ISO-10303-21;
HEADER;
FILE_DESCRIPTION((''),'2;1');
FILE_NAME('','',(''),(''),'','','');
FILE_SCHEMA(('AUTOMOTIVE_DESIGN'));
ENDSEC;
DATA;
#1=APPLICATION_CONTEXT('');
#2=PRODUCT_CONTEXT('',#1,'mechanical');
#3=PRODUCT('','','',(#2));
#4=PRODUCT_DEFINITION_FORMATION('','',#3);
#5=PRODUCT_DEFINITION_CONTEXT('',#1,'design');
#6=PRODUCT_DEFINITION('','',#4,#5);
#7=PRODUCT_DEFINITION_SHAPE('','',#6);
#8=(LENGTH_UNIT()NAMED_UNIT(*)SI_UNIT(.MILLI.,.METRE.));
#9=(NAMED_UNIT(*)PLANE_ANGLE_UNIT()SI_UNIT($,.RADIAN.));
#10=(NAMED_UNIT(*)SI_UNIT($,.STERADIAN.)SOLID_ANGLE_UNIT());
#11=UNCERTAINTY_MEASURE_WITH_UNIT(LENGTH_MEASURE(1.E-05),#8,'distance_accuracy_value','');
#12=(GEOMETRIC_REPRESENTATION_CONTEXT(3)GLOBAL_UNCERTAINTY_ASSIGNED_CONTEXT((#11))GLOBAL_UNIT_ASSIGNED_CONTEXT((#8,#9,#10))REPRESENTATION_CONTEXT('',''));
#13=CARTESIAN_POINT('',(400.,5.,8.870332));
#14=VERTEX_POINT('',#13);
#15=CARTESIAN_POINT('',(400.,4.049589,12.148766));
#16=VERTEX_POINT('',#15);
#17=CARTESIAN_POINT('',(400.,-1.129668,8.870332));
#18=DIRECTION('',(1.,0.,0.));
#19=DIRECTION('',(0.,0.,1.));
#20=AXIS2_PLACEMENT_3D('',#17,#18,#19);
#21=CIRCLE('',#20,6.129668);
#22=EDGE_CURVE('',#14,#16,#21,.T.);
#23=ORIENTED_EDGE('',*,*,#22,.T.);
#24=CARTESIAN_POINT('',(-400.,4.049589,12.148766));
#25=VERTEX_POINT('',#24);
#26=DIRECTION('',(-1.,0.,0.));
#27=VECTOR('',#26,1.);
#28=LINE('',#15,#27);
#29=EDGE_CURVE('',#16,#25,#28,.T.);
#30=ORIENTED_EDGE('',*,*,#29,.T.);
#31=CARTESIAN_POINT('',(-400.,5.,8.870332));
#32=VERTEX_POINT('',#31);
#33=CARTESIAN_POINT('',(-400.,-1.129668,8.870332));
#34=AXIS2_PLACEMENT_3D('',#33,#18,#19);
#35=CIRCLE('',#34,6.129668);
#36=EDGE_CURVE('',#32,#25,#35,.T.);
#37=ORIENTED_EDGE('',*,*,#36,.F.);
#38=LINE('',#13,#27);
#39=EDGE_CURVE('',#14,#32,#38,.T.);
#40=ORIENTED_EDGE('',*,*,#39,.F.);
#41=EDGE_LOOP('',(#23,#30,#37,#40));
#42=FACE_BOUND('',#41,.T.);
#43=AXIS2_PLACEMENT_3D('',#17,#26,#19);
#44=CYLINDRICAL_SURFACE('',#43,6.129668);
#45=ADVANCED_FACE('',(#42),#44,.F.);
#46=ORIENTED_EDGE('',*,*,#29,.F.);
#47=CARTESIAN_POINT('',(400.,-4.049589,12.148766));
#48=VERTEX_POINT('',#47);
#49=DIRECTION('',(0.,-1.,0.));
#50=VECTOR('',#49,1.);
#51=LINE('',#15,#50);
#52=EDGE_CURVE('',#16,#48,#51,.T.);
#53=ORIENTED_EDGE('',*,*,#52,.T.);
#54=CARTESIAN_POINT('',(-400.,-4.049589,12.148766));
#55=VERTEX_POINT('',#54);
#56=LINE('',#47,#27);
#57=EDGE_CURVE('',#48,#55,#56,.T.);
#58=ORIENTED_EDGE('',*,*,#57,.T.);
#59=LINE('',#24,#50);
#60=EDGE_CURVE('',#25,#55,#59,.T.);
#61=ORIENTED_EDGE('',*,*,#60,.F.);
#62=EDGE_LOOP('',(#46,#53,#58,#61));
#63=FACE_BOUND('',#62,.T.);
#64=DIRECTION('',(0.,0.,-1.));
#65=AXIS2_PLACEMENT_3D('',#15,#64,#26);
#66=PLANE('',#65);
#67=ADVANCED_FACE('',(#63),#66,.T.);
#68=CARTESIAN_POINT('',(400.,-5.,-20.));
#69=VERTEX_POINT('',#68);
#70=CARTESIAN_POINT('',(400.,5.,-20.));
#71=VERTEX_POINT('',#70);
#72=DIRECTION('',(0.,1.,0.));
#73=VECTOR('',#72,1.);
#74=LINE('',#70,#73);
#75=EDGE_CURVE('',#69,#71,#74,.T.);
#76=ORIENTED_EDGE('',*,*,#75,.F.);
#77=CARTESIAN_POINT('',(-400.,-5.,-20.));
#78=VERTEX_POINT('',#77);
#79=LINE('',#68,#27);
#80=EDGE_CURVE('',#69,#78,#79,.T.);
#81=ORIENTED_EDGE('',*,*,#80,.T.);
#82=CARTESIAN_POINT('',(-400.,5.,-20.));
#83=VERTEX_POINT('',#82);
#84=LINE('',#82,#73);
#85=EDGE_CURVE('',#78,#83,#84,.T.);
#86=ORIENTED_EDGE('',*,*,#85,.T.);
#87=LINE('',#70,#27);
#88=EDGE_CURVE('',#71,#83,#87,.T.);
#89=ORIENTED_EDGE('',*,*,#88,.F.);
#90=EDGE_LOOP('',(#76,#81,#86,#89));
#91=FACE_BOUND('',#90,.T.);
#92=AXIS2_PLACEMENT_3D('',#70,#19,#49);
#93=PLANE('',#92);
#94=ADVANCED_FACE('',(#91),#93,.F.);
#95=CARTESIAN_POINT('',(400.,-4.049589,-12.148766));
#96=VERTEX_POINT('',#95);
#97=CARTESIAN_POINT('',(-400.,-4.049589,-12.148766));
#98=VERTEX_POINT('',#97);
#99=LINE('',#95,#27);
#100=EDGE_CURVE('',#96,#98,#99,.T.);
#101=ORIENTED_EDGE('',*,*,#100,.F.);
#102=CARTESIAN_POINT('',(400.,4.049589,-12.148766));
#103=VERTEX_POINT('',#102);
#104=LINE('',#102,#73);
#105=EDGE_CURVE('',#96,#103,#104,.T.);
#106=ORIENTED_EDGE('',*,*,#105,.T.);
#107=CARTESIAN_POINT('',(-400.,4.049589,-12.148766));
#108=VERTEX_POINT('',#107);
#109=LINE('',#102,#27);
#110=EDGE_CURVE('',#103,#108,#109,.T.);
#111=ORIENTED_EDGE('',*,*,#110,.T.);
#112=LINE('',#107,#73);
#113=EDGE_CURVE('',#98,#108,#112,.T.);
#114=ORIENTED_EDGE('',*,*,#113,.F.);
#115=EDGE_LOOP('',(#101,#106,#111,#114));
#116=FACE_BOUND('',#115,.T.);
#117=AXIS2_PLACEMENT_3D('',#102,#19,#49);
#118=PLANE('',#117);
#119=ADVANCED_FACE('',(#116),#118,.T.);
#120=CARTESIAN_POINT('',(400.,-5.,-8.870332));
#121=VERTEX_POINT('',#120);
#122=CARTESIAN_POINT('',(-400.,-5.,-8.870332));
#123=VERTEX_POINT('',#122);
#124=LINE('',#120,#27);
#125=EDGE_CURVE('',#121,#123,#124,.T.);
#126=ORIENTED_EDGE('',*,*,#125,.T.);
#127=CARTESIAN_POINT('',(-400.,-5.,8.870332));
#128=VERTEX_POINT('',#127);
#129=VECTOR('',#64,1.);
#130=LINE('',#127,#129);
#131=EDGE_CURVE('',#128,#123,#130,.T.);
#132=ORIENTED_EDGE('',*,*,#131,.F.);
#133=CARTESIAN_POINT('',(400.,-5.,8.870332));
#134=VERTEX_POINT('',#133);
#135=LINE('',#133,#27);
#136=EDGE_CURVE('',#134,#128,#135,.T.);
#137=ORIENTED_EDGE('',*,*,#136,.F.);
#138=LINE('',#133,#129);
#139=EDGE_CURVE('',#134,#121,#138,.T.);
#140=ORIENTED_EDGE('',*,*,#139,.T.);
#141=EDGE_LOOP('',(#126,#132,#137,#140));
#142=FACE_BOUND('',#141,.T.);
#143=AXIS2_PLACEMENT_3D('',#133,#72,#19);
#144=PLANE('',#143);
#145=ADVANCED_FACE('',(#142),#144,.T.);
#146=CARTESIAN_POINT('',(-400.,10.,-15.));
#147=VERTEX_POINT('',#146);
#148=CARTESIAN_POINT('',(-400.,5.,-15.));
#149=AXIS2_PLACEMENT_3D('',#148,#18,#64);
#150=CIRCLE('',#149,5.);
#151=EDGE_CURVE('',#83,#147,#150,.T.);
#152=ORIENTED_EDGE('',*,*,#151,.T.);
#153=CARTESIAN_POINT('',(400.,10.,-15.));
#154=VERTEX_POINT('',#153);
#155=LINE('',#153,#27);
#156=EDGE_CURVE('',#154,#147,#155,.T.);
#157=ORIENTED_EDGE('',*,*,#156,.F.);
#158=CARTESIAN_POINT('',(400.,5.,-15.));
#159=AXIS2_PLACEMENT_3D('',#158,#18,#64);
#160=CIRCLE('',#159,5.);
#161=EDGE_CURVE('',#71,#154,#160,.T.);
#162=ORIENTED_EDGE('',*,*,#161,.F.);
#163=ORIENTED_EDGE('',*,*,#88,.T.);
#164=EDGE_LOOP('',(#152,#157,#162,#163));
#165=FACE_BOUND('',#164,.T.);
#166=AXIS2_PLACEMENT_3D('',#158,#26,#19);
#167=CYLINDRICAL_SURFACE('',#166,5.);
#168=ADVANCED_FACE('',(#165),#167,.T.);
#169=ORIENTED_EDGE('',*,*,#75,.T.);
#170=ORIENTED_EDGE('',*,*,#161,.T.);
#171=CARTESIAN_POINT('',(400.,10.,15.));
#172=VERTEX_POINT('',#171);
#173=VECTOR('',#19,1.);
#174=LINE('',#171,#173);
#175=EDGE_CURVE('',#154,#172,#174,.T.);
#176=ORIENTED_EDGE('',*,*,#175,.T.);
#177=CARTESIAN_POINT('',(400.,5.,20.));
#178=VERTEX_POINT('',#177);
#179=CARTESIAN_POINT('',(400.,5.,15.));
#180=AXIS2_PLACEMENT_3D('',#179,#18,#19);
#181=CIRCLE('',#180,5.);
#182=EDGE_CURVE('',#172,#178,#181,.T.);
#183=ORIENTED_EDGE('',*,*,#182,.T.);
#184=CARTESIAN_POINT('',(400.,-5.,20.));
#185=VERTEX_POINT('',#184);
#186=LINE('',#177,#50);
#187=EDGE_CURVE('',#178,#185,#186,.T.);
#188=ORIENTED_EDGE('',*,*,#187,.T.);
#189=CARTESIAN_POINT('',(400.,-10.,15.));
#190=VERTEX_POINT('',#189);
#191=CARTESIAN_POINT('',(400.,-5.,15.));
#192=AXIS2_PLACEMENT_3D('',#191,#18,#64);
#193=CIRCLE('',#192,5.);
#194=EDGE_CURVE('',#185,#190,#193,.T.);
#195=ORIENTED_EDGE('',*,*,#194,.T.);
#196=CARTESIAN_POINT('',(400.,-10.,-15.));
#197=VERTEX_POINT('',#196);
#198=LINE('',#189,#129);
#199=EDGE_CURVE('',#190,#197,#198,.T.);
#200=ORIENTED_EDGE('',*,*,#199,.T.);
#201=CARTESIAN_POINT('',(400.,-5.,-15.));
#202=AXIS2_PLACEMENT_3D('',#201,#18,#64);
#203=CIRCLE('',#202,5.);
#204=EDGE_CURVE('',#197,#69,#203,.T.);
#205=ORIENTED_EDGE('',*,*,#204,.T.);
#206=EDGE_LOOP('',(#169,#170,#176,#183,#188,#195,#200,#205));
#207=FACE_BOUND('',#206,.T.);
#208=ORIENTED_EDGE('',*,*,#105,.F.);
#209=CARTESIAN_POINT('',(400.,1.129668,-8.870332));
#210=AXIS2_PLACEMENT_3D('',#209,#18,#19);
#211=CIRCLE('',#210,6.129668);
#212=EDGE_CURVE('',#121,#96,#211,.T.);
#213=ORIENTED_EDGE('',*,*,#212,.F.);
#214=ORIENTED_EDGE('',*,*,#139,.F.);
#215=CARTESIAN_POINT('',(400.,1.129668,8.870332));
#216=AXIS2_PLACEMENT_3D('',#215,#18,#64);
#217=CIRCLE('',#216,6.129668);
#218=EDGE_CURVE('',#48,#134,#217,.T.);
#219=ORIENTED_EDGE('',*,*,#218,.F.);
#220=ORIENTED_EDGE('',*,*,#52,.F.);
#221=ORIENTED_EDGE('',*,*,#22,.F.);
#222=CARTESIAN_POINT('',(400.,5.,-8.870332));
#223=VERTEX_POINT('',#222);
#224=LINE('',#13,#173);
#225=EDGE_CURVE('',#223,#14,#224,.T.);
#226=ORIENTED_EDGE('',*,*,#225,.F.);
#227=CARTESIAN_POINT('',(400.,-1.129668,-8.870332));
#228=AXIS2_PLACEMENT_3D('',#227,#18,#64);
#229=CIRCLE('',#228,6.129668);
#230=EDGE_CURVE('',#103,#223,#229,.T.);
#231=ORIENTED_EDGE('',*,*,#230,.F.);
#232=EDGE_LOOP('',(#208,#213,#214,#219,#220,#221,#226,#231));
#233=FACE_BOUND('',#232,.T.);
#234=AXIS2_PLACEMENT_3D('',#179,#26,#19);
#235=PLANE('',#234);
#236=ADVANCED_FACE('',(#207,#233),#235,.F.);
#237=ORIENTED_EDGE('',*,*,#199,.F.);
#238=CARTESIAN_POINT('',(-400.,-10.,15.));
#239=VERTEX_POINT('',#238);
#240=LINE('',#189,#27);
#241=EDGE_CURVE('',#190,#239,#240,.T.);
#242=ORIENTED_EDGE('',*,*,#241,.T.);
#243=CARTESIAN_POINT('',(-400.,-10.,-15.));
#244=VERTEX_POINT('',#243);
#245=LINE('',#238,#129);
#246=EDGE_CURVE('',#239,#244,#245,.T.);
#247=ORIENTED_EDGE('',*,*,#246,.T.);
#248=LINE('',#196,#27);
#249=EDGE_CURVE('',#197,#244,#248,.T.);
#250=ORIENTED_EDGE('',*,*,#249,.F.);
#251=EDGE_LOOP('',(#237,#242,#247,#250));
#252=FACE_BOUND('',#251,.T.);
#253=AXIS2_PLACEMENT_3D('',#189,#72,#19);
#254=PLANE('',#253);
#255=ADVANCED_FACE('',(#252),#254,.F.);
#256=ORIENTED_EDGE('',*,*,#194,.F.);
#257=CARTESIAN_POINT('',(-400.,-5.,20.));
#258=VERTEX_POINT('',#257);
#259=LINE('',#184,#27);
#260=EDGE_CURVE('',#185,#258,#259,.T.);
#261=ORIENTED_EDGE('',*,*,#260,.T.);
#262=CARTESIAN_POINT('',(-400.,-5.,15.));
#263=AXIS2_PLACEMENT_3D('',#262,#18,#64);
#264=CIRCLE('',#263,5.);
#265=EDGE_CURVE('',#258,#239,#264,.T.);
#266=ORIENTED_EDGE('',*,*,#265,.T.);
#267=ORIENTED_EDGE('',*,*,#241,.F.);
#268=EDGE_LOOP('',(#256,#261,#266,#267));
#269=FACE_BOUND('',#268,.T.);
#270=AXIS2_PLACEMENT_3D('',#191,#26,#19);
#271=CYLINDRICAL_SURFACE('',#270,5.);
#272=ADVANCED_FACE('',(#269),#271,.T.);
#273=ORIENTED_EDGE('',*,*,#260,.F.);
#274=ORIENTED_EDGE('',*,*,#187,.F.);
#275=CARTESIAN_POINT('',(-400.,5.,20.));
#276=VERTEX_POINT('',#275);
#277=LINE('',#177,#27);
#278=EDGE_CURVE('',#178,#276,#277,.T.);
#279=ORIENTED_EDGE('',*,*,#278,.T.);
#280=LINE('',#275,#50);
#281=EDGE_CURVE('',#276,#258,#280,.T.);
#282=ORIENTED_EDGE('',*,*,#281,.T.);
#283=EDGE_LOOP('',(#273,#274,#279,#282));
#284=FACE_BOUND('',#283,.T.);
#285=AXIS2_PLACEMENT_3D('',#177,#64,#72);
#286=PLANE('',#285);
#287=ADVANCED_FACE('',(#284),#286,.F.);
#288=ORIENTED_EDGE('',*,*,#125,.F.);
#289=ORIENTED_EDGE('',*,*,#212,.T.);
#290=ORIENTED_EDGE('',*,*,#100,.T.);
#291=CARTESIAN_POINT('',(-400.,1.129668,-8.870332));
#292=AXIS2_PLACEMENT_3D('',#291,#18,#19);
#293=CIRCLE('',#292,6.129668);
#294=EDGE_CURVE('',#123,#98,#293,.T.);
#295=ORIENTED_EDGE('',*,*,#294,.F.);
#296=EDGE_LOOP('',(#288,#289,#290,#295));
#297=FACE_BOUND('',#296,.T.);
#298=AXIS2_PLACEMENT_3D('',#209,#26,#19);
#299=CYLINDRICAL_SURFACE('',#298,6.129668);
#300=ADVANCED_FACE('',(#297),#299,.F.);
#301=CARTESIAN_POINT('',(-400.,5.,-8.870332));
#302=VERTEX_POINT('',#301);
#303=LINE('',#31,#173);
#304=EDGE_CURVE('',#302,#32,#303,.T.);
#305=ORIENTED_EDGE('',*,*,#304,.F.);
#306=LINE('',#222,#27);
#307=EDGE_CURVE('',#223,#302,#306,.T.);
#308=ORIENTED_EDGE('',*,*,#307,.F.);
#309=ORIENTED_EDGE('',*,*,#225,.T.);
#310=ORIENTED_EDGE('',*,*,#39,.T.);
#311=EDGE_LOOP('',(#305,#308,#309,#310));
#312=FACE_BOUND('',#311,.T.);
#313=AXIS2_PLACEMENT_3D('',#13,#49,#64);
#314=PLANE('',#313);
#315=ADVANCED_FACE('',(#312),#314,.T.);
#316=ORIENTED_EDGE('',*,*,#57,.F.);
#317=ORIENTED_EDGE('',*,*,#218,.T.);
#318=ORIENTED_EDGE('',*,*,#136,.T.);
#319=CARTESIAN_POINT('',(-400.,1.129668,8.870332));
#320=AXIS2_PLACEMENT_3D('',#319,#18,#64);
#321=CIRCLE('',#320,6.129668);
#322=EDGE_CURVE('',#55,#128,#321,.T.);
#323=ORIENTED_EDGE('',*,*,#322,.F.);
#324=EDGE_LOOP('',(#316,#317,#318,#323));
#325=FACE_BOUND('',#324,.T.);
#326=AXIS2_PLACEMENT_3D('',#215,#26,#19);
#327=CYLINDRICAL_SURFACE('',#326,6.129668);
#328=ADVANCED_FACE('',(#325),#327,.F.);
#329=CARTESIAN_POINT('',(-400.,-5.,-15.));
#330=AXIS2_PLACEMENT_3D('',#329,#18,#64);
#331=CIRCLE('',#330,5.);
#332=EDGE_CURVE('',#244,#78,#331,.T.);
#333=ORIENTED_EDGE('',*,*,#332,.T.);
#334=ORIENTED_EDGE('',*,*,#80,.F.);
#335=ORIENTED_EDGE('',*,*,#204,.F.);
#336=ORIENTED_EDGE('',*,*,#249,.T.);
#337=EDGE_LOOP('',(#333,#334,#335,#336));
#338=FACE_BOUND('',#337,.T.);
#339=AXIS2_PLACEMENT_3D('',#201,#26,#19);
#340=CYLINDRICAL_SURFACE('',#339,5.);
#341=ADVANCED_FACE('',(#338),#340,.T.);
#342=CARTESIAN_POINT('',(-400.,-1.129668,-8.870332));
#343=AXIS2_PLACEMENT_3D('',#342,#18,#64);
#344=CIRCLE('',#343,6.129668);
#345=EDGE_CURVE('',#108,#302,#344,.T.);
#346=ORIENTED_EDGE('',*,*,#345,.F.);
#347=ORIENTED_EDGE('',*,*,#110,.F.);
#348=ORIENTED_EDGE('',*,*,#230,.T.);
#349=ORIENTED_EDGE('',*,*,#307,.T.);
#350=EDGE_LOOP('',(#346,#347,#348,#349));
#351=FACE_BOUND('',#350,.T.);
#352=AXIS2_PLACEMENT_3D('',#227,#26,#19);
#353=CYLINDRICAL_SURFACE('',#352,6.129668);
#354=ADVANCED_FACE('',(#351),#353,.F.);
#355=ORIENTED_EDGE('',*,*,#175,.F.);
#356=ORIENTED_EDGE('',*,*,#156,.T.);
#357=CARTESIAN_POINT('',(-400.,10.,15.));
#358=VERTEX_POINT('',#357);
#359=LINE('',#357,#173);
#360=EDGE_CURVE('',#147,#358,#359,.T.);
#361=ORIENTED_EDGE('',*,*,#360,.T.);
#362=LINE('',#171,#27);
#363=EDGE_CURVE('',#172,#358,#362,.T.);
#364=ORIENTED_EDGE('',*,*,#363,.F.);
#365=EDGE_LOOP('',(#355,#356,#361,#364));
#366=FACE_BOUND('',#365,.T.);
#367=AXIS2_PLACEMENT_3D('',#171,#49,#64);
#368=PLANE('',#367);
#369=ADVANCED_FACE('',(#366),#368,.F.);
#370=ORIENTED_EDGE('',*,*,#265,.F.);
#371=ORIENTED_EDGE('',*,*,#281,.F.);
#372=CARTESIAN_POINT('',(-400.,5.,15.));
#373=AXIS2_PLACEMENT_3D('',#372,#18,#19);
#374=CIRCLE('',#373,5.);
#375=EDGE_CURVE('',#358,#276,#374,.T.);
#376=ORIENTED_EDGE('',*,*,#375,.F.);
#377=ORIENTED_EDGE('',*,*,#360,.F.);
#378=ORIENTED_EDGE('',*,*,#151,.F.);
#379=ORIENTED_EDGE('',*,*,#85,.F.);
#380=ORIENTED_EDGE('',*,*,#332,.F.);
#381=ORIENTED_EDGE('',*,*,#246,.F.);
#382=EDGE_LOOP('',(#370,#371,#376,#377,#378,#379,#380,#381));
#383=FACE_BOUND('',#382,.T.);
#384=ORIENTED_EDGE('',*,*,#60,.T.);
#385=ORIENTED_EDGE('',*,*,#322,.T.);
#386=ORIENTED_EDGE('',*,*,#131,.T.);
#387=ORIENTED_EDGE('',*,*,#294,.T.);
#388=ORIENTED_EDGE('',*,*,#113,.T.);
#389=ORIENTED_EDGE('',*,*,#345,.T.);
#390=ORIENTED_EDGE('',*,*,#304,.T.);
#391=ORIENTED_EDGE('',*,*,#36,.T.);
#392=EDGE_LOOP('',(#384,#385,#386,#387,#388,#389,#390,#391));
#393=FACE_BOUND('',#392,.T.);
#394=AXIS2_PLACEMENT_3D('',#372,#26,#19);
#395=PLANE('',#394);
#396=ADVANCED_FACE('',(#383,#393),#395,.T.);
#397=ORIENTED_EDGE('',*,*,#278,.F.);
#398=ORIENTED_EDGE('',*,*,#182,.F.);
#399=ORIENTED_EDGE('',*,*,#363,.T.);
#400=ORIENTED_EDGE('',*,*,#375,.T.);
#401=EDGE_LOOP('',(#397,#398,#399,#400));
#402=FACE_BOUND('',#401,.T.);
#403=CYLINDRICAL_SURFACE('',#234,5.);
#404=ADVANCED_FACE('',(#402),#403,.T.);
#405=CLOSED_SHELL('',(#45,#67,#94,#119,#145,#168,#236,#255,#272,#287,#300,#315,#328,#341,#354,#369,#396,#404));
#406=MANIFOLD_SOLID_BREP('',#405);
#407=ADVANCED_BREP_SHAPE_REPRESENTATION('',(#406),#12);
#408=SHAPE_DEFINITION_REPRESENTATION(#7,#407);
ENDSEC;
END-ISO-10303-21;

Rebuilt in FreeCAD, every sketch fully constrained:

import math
import FreeCAD as App
import Part
import Sketcher

V = App.Vector
Q = App.Units.Quantity

doc = App.newDocument("Part")
params = doc.addObject("Spreadsheet::Sheet", "Params")
for row, (alias, value) in enumerate([
    ("sketch1_radius", "5 mm"),
    ("sketch1_width", "10 mm"),
    ("sketch1_height", "30 mm"),
    ("pad1_length", "800 mm"),
], start=1):
    params.set(f"A{row}", alias)
    params.set(f"B{row}", "=" + value)
    params.setAlias(f"B{row}", alias)

body = doc.addObject("PartDesign::Body", "Body")

# Sketch on YZ plane
sketch1 = body.newObject("Sketcher::SketchObject", "Sketch")
sketch1.AttachmentSupport = (doc.getObject("YZ_Plane"), [""])
sketch1.MapMode = "FlatFace"
sketch1.addGeometry([
    Part.LineSegment(V(10, -15, 0), V(10, 15, 0)),  # 0
    Part.ArcOfCircle(Part.Circle(V(5, 15, 0), V(0, 0, 1), 5), math.radians(0), math.radians(90)),  # 1
    Part.LineSegment(V(5, 20, 0), V(-5, 20, 0)),  # 2
    Part.ArcOfCircle(Part.Circle(V(-5, 15, 0), V(0, 0, 1), 5), math.radians(90), math.radians(180)),  # 3
    Part.LineSegment(V(-10, 15, 0), V(-10, -15, 0)),  # 4
    Part.ArcOfCircle(Part.Circle(V(-5, -15, 0), V(0, 0, 1), 5), math.radians(180), math.radians(270)),  # 5
    Part.LineSegment(V(-5, -20, 0), V(5, -20, 0)),  # 6
    Part.ArcOfCircle(Part.Circle(V(5, -15, 0), V(0, 0, 1), 5), math.radians(-90), math.radians(0)),  # 7
    Part.LineSegment(V(4.049589, -12.148766, 0), V(-4.049589, -12.148766, 0)),  # 8
    Part.ArcOfCircle(Part.Circle(V(1.129668, -8.870332, 0), V(0, 0, 1), 6.129668), math.radians(180), math.radians(212.333531)),  # 9
    Part.LineSegment(V(-5, -8.870332, 0), V(-5, 8.870332, 0)),  # 10
    Part.ArcOfCircle(Part.Circle(V(1.129668, 8.870332, 0), V(0, 0, 1), 6.129668), math.radians(147.666469), math.radians(180)),  # 11
    Part.LineSegment(V(-4.049589, 12.148766, 0), V(4.049589, 12.148766, 0)),  # 12
    Part.ArcOfCircle(Part.Circle(V(-1.129668, 8.870332, 0), V(0, 0, 1), 6.129668), math.radians(0), math.radians(32.333531)),  # 13
    Part.LineSegment(V(5, 8.870332, 0), V(5, -8.870332, 0)),  # 14
    Part.ArcOfCircle(Part.Circle(V(-1.129668, -8.870332, 0), V(0, 0, 1), 6.129668), math.radians(-32.333531), math.radians(0)),  # 15
], False)
sketch1.addConstraint([
    Sketcher.Constraint("Tangent", 0, 2, 1, 1),
    Sketcher.Constraint("Tangent", 1, 2, 2, 1),
    Sketcher.Constraint("Tangent", 2, 2, 3, 1),
    Sketcher.Constraint("Tangent", 3, 2, 4, 1),
    Sketcher.Constraint("Tangent", 4, 2, 5, 1),
    Sketcher.Constraint("Tangent", 5, 2, 6, 1),
    Sketcher.Constraint("Tangent", 6, 2, 7, 1),
    Sketcher.Constraint("Tangent", 7, 2, 0, 1),
    Sketcher.Constraint("Coincident", 8, 2, 9, 2),
    Sketcher.Constraint("Tangent", 9, 1, 10, 1),
    Sketcher.Constraint("Tangent", 10, 2, 11, 2),
    Sketcher.Constraint("Coincident", 11, 1, 12, 1),
    Sketcher.Constraint("Coincident", 12, 2, 13, 2),
    Sketcher.Constraint("Tangent", 13, 1, 14, 1),
    Sketcher.Constraint("Tangent", 14, 2, 15, 2),
    Sketcher.Constraint("Coincident", 15, 1, 8, 1),
    Sketcher.Constraint("Vertical", 0),
    Sketcher.Constraint("Horizontal", 2),
    Sketcher.Constraint("Vertical", 4),
    Sketcher.Constraint("Horizontal", 6),
    Sketcher.Constraint("Horizontal", 8),
    Sketcher.Constraint("Vertical", 10),
    Sketcher.Constraint("Horizontal", 12),
    Sketcher.Constraint("Vertical", 14),
    Sketcher.Constraint("Equal", 1, 3),
    Sketcher.Constraint("Equal", 3, 5),
    Sketcher.Constraint("Equal", 5, 7),
    Sketcher.Constraint("Equal", 9, 11),
    Sketcher.Constraint("Equal", 11, 13),
    Sketcher.Constraint("Equal", 13, 15),
    Sketcher.Constraint("Symmetric", 1, 3, 5, 3, -1, 1),
    Sketcher.Constraint("Symmetric", 9, 3, 13, 3, -1, 1),
    Sketcher.Constraint("Symmetric", 11, 1, 15, 1, -1, 1),
    Sketcher.Constraint("Horizontal", 11, 3, 13, 3),
    Sketcher.Constraint("Vertical", 5, 2, 9, 1),
    Sketcher.Constraint("Radius", 1, Q("5 mm")),
    Sketcher.Constraint("DistanceX", 2, 2, 2, 1, Q("10 mm")),
    Sketcher.Constraint("DistanceY", 0, 1, 0, 2, Q("30 mm")),
    Sketcher.Constraint("Radius", 9, Q("6.129668 mm")),
    Sketcher.Constraint("DistanceX", 8, 2, 8, 1, Q("8.099177 mm")),
    Sketcher.Constraint("DistanceY", 10, 1, 10, 2, Q("17.740664 mm")),
])
sketch1.setExpression("Constraints[35]", "Params.sketch1_radius")
sketch1.setExpression("Constraints[36]", "Params.sketch1_width")
sketch1.setExpression("Constraints[37]", "Params.sketch1_height")
pad1 = body.newObject("PartDesign::Pad", "Pad")
pad1.Profile = sketch1
pad1.setExpression("Length", "Params.pad1_length")
pad1.Midplane = True

doc.recompute()
